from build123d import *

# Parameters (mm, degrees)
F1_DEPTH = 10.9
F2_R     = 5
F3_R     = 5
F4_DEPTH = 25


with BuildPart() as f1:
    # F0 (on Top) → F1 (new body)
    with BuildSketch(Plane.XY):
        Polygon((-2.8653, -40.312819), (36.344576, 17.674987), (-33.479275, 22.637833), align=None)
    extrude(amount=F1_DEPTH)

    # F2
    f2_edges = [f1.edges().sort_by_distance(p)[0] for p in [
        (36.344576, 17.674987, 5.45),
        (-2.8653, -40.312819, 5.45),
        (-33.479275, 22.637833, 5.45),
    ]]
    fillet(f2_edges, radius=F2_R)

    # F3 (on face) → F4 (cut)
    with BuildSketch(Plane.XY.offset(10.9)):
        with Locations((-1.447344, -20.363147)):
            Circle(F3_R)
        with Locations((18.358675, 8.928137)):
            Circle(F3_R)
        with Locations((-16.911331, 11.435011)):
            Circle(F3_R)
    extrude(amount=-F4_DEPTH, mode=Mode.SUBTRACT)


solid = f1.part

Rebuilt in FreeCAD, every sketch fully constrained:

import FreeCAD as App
import Part
import Sketcher


def edges_at(feature, points):
    """Names of the edges that pass closest to the given points."""
    edges = feature.Shape.Edges
    near = lambda p: min(range(len(edges)), key=lambda i: edges[i].distToShape(Part.Vertex(*p))[0])
    return sorted({f"Edge{near(p) + 1}" for p in points})

doc = App.newDocument("Part")
body = doc.addObject("PartDesign::Body", "Body")

# Sketch on XY plane
sketch1 = body.newObject("Sketcher::SketchObject", "Sketch")
sketch1.AttachmentSupport = (doc.getObject("XY_Plane"), [""])
sketch1.MapMode = "FlatFace"
sketch1.addGeometry([
    Part.LineSegment(App.Vector(-2.8653, -40.312819, 0), App.Vector(36.344576, 17.674987, 0)),
    Part.LineSegment(App.Vector(36.344576, 17.674987, 0), App.Vector(-33.479275, 22.637833, 0)),
    Part.LineSegment(App.Vector(-33.479275, 22.637833, 0), App.Vector(-2.8653, -40.312819, 0)),
], False)
sketch1.addConstraint([
    Sketcher.Constraint("Coincident", 0, 2, 1, 1),
    Sketcher.Constraint("Coincident", 1, 2, 2, 1),
    Sketcher.Constraint("Coincident", 2, 2, 0, 1),
    Sketcher.Constraint("Equal", 0, 1),
    Sketcher.Constraint("Equal", 1, 2),
    Sketcher.Constraint("Distance", 0, 70.0),
    Sketcher.Constraint("DistanceX", 2, 2, -1, 1, 2.8653),
    Sketcher.Constraint("DistanceY", 2, 2, -1, 1, 40.312819),
    Sketcher.Constraint("DistanceX", 1, 2, 0, 2, 69.823851),
])
pad1 = body.newObject("PartDesign::Pad", "Pad")
pad1.Profile = sketch1
pad1.Length = 10.9
doc.recompute()

fillet = body.newObject("PartDesign::Fillet", "Fillet")
fillet.Base = (pad1, edges_at(pad1, [(36.345, 17.675, 5.45), (-2.865, -40.313, 5.45), (-33.479, 22.638, 5.45)]))
fillet.Radius = 5

# Sketch on XY plane
sketch2 = body.newObject("Sketcher::SketchObject", "Sketch001")
sketch2.AttachmentSupport = (doc.getObject("XY_Plane"), [""])
sketch2.MapMode = "FlatFace"
sketch2.AttachmentOffset = App.Placement(App.Vector(0, 0, 10.9), App.Rotation())
sketch2.addGeometry([
    Part.Circle(App.Vector(-1.447344, -20.363147, 0), App.Vector(0, 0, 1), 5),
    Part.Circle(App.Vector(18.358675, 8.928137, 0), App.Vector(0, 0, 1), 5),
    Part.Circle(App.Vector(-16.911331, 11.435011, 0), App.Vector(0, 0, 1), 5),
], False)
sketch2.addConstraint([
    Sketcher.Constraint("Equal", 0, 1),
    Sketcher.Constraint("Equal", 1, 2),
    Sketcher.Constraint("Diameter", 0, 10.0),
    Sketcher.Constraint("DistanceX", 2, 3, -1, 1, 16.911331),
    Sketcher.Constraint("DistanceY", -1, 1, 2, 3, 11.435011),
    Sketcher.Constraint("DistanceX", 0, 3, 1, 3, 19.806019),
    Sketcher.Constraint("DistanceY", 0, 3, 2, 3, 31.798158),
    Sketcher.Constraint("DistanceX", 0, 3, -1, 1, 1.447344),
    Sketcher.Constraint("DistanceY", -1, 1, 1, 3, 8.928137),
])
pocket1 = body.newObject("PartDesign::Pocket", "Pocket")
pocket1.Profile = sketch2
pocket1.Length = 25

doc.recompute()
